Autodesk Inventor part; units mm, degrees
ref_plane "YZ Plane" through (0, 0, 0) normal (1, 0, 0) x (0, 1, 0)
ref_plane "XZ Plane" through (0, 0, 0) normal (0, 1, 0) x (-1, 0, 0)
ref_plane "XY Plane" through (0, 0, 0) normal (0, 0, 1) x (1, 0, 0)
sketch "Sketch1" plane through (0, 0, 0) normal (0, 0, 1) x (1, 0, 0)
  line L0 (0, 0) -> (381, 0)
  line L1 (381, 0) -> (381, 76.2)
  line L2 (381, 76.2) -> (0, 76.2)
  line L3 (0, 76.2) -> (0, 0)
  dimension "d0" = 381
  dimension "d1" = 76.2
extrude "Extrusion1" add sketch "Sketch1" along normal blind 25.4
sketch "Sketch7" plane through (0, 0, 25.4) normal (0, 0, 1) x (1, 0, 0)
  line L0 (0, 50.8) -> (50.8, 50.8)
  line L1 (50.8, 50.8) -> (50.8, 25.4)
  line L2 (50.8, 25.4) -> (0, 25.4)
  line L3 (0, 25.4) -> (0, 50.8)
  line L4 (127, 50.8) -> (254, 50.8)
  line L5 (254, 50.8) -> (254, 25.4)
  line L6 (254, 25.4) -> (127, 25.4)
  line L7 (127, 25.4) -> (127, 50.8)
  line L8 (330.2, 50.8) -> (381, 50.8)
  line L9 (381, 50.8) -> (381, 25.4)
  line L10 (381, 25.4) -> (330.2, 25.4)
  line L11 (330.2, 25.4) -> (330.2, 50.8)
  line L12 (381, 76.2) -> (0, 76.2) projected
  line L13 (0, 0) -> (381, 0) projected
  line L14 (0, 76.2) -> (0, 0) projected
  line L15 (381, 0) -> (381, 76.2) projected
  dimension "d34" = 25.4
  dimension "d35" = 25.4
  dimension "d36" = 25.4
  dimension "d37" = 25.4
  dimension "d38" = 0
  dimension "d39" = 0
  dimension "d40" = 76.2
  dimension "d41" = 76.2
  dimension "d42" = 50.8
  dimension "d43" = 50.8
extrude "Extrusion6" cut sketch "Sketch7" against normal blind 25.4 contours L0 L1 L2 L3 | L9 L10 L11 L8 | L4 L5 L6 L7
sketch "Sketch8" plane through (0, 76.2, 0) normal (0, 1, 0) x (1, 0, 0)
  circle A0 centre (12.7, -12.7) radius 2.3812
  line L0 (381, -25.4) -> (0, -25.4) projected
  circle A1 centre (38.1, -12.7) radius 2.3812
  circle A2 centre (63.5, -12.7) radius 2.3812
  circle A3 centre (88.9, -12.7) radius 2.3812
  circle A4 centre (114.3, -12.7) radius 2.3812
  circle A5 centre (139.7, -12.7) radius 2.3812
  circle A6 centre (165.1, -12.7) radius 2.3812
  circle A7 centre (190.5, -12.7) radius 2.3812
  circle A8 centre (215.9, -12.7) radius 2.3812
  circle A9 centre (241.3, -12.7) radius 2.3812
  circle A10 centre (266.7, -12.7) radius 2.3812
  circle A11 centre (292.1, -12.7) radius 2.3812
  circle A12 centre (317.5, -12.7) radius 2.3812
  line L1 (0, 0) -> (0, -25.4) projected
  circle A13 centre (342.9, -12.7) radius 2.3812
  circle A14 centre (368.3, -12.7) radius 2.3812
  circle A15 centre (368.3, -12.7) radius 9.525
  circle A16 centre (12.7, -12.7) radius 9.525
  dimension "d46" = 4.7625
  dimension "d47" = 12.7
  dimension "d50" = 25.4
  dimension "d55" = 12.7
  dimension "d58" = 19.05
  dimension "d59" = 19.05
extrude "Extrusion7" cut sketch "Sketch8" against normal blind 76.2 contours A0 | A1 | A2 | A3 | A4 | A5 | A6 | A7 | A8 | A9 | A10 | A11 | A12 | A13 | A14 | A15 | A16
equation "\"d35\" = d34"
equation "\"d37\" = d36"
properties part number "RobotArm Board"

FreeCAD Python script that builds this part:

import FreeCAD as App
import Part
import Sketcher
from FreeCAD import Vector
Q = App.Units.Quantity


def add_polygon(sketch, points):
    """Adds a closed chain of lines whose ends are joined by coincident constraints."""
    first, n = sketch.GeometryCount, len(points)
    for a, b in zip(points, points[1:] + points[:1]):
        sketch.addGeometry(Part.LineSegment(App.Vector(*a, 0), App.Vector(*b, 0)), False)
    for i in range(n):
        sketch.addConstraint(Sketcher.Constraint("Coincident", first + i, 2, first + (i + 1) % n, 1))

doc = App.newDocument("Part")
body = doc.addObject("PartDesign::Body", "Body")

# Sketch on XY plane
sketch1 = doc.addObject("Sketcher::SketchObject", "Sketch")
body.addObject(sketch1)
sketch1.AttachmentSupport = (doc.XY_Plane, [""])
sketch1.MapMode = "FlatFace"
add_polygon(sketch1, [(0, 76.2), (0, 0), (381, 0), (381, 76.2)])  # lines 0-3
sketch1.addConstraint([
    Sketcher.Constraint("Vertical", 0),
    Sketcher.Constraint("Horizontal", 1),
    Sketcher.Constraint("Vertical", 2),
    Sketcher.Constraint("Horizontal", 3),
    Sketcher.Constraint("Coincident", 0, 2, -1, 1),
    Sketcher.Constraint("DistanceX", 1, 1, 1, 2, Q("15 in")),
    Sketcher.Constraint("DistanceY", 0, 2, 0, 1, Q("3 in")),
])
pad1 = doc.addObject("PartDesign::Pad", "Pad")
body.addObject(pad1)
pad1.Profile = sketch1
pad1.Length = Q("1 in")

# Sketch on XY plane
sketch2 = doc.addObject("Sketcher::SketchObject", "Sketch001")
body.addObject(sketch2)
sketch2.AttachmentSupport = (doc.XY_Plane, [""])
sketch2.MapMode = "FlatFace"
sketch2.AttachmentOffset = App.Placement(Vector(0, 0, 1 * 25.4), App.Rotation())
add_polygon(sketch2, [(50.8, 50.8), (0, 50.8), (0, 25.4), (50.8, 25.4)])  # lines 0-3
add_polygon(sketch2, [(381, 25.4), (381, 50.8), (330.2, 50.8), (330.2, 25.4)])  # lines 4-7
add_polygon(sketch2, [(254, 50.8), (127, 50.8), (127, 25.4), (254, 25.4)])  # lines 8-11
sketch2.addConstraint([
    Sketcher.Constraint("Horizontal", 0),
    Sketcher.Constraint("Vertical", 1),
    Sketcher.Constraint("Horizontal", 2),
    Sketcher.Constraint("Vertical", 3),
    Sketcher.Constraint("Vertical", 4),
    Sketcher.Constraint("Horizontal", 5),
    Sketcher.Constraint("Vertical", 6),
    Sketcher.Constraint("Horizontal", 7),
    Sketcher.Constraint("Horizontal", 8),
    Sketcher.Constraint("Vertical", 9),
    Sketcher.Constraint("Horizontal", 10),
    Sketcher.Constraint("Vertical", 11),
    Sketcher.Constraint("PointOnObject", 0, 2, -2),
    Sketcher.Constraint("Horizontal", 3, 2, 4, 2),
    Sketcher.Constraint("Horizontal", 2, 2, 6, 2),
    Sketcher.Constraint("Horizontal", 5, 2, 8, 2),
    Sketcher.Constraint("Horizontal", 7, 2, 9, 2),
    Sketcher.Constraint("Equal", 2, 5),
    Sketcher.Constraint("DistanceX", 0, 2, 0, 1, Q("2 in")),
    Sketcher.Constraint("DistanceY", 1, 2, 1, 1, Q("1 in")),
    Sketcher.Constraint("DistanceY", -1, 1, 0, 2, Q("2 in")),
    Sketcher.Constraint("DistanceX", 3, 2, 8, 2, Q("3 in")),
    Sketcher.Constraint("DistanceX", 10, 2, 6, 2, Q("3 in")),
    Sketcher.Constraint("DistanceX", 8, 2, 8, 1, Q("5 in")),
])
pocket1 = doc.addObject("PartDesign::Pocket", "Pocket")
body.addObject(pocket1)
pocket1.Profile = sketch2
pocket1.Length = Q("1 in")

# Sketch on XZ plane
sketch3 = doc.addObject("Sketcher::SketchObject", "Sketch002")
body.addObject(sketch3)
sketch3.AttachmentSupport = (doc.XZ_Plane, [""])
sketch3.MapMode = "FlatFace"
sketch3.AttachmentOffset = App.Placement(Vector(0, 0, -3 * 25.4), App.Rotation())
sketch3.addGeometry([
    Part.Circle(Vector(12.7, 12.7, 0), Vector(0, 0, 1), 9.525),  # 0
    Part.Circle(Vector(38.1, 12.7, 0), Vector(0, 0, 1), 2.3812),  # 1
    Part.Circle(Vector(63.5, 12.7, 0), Vector(0, 0, 1), 2.3812),  # 2
    Part.Circle(Vector(88.9, 12.7, 0), Vector(0, 0, 1), 2.3812),  # 3
    Part.Circle(Vector(114.3, 12.7, 0), Vector(0, 0, 1), 2.3812),  # 4
    Part.Circle(Vector(139.7, 12.7, 0), Vector(0, 0, 1), 2.3812),  # 5
    Part.Circle(Vector(165.1, 12.7, 0), Vector(0, 0, 1), 2.3812),  # 6
    Part.Circle(Vector(190.5, 12.7, 0), Vector(0, 0, 1), 2.3812),  # 7
    Part.Circle(Vector(215.9, 12.7, 0), Vector(0, 0, 1), 2.3812),  # 8
    Part.Circle(Vector(241.3, 12.7, 0), Vector(0, 0, 1), 2.3812),  # 9
    Part.Circle(Vector(266.7, 12.7, 0), Vector(0, 0, 1), 2.3812),  # 10
    Part.Circle(Vector(292.1, 12.7, 0), Vector(0, 0, 1), 2.3812),  # 11
    Part.Circle(Vector(317.5, 12.7, 0), Vector(0, 0, 1), 2.3812),  # 12
    Part.Circle(Vector(342.9, 12.7, 0), Vector(0, 0, 1), 2.3812),  # 13
    Part.Circle(Vector(368.3, 12.7, 0), Vector(0, 0, 1), 9.525),  # 14
], False)
sketch3.addConstraint([
    Sketcher.Constraint("Equal", 1, 2),
    Sketcher.Constraint("Equal", 2, 3),
    Sketcher.Constraint("Equal", 3, 4),
    Sketcher.Constraint("Equal", 4, 5),
    Sketcher.Constraint("Equal", 5, 6),
    Sketcher.Constraint("Equal", 6, 7),
    Sketcher.Constraint("Equal", 7, 8),
    Sketcher.Constraint("Equal", 8, 9),
    Sketcher.Constraint("Equal", 9, 10),
    Sketcher.Constraint("Equal", 10, 11),
    Sketcher.Constraint("Equal", 11, 12),
    Sketcher.Constraint("Equal", 12, 13),
    Sketcher.Constraint("Equal", 0, 14),
    Sketcher.Constraint("Horizontal", 0, 3, 1, 3),
    Sketcher.Constraint("Horizontal", 1, 3, 2, 3),
    Sketcher.Constraint("Horizontal", 2, 3, 3, 3),
    Sketcher.Constraint("Horizontal", 3, 3, 4, 3),
    Sketcher.Constraint("Horizontal", 4, 3, 5, 3),
    Sketcher.Constraint("Horizontal", 5, 3, 6, 3),
    Sketcher.Constraint("Horizontal", 6, 3, 7, 3),
    Sketcher.Constraint("Horizontal", 7, 3, 8, 3),
    Sketcher.Constraint("Horizontal", 8, 3, 9, 3),
    Sketcher.Constraint("Horizontal", 9, 3, 10, 3),
    Sketcher.Constraint("Horizontal", 10, 3, 11, 3),
    Sketcher.Constraint("Horizontal", 11, 3, 12, 3),
    Sketcher.Constraint("Horizontal", 12, 3, 13, 3),
    Sketcher.Constraint("Horizontal", 13, 3, 14, 3),
    Sketcher.Constraint("Diameter", 0, Q("0.75 in")),
    Sketcher.Constraint("Diameter", 1, Q("0.1875 in")),
    Sketcher.Constraint("DistanceX", 0, 3, 1, 3, Q("1 in")),
    Sketcher.Constraint("DistanceX", 1, 3, 2, 3, Q("1 in")),
    Sketcher.Constraint("DistanceX", 2, 3, 3, 3, Q("1 in")),
    Sketcher.Constraint("DistanceX", 3, 3, 4, 3, Q("1 in")),
    Sketcher.Constraint("DistanceX", 4, 3, 5, 3, Q("1 in")),
    Sketcher.Constraint("DistanceX", 5, 3, 6, 3, Q("1 in")),
    Sketcher.Constraint("DistanceX", 6, 3, 7, 3, Q("1 in")),
    Sketcher.Constraint("DistanceX", 7, 3, 8, 3, Q("1 in")),
    Sketcher.Constraint("DistanceX", 8, 3, 9, 3, Q("1 in")),
    Sketcher.Constraint("DistanceX", 9, 3, 10, 3, Q("1 in")),
    Sketcher.Constraint("DistanceX", 10, 3, 11, 3, Q("1 in")),
    Sketcher.Constraint("DistanceX", 11, 3, 12, 3, Q("1 in")),
    Sketcher.Constraint("DistanceX", 12, 3, 13, 3, Q("1 in")),
    Sketcher.Constraint("DistanceX", 13, 3, 14, 3, Q("1 in")),
    Sketcher.Constraint("DistanceX", -1, 1, 0, 3, Q("0.5 in")),
    Sketcher.Constraint("DistanceY", -1, 1, 0, 3, Q("0.5 in")),
])
pocket2 = doc.addObject("PartDesign::Pocket", "Pocket001")
body.addObject(pocket2)
pocket2.Profile = sketch3
pocket2.Length = Q("3 in")
pocket2.Reversed = True

doc.recompute()
